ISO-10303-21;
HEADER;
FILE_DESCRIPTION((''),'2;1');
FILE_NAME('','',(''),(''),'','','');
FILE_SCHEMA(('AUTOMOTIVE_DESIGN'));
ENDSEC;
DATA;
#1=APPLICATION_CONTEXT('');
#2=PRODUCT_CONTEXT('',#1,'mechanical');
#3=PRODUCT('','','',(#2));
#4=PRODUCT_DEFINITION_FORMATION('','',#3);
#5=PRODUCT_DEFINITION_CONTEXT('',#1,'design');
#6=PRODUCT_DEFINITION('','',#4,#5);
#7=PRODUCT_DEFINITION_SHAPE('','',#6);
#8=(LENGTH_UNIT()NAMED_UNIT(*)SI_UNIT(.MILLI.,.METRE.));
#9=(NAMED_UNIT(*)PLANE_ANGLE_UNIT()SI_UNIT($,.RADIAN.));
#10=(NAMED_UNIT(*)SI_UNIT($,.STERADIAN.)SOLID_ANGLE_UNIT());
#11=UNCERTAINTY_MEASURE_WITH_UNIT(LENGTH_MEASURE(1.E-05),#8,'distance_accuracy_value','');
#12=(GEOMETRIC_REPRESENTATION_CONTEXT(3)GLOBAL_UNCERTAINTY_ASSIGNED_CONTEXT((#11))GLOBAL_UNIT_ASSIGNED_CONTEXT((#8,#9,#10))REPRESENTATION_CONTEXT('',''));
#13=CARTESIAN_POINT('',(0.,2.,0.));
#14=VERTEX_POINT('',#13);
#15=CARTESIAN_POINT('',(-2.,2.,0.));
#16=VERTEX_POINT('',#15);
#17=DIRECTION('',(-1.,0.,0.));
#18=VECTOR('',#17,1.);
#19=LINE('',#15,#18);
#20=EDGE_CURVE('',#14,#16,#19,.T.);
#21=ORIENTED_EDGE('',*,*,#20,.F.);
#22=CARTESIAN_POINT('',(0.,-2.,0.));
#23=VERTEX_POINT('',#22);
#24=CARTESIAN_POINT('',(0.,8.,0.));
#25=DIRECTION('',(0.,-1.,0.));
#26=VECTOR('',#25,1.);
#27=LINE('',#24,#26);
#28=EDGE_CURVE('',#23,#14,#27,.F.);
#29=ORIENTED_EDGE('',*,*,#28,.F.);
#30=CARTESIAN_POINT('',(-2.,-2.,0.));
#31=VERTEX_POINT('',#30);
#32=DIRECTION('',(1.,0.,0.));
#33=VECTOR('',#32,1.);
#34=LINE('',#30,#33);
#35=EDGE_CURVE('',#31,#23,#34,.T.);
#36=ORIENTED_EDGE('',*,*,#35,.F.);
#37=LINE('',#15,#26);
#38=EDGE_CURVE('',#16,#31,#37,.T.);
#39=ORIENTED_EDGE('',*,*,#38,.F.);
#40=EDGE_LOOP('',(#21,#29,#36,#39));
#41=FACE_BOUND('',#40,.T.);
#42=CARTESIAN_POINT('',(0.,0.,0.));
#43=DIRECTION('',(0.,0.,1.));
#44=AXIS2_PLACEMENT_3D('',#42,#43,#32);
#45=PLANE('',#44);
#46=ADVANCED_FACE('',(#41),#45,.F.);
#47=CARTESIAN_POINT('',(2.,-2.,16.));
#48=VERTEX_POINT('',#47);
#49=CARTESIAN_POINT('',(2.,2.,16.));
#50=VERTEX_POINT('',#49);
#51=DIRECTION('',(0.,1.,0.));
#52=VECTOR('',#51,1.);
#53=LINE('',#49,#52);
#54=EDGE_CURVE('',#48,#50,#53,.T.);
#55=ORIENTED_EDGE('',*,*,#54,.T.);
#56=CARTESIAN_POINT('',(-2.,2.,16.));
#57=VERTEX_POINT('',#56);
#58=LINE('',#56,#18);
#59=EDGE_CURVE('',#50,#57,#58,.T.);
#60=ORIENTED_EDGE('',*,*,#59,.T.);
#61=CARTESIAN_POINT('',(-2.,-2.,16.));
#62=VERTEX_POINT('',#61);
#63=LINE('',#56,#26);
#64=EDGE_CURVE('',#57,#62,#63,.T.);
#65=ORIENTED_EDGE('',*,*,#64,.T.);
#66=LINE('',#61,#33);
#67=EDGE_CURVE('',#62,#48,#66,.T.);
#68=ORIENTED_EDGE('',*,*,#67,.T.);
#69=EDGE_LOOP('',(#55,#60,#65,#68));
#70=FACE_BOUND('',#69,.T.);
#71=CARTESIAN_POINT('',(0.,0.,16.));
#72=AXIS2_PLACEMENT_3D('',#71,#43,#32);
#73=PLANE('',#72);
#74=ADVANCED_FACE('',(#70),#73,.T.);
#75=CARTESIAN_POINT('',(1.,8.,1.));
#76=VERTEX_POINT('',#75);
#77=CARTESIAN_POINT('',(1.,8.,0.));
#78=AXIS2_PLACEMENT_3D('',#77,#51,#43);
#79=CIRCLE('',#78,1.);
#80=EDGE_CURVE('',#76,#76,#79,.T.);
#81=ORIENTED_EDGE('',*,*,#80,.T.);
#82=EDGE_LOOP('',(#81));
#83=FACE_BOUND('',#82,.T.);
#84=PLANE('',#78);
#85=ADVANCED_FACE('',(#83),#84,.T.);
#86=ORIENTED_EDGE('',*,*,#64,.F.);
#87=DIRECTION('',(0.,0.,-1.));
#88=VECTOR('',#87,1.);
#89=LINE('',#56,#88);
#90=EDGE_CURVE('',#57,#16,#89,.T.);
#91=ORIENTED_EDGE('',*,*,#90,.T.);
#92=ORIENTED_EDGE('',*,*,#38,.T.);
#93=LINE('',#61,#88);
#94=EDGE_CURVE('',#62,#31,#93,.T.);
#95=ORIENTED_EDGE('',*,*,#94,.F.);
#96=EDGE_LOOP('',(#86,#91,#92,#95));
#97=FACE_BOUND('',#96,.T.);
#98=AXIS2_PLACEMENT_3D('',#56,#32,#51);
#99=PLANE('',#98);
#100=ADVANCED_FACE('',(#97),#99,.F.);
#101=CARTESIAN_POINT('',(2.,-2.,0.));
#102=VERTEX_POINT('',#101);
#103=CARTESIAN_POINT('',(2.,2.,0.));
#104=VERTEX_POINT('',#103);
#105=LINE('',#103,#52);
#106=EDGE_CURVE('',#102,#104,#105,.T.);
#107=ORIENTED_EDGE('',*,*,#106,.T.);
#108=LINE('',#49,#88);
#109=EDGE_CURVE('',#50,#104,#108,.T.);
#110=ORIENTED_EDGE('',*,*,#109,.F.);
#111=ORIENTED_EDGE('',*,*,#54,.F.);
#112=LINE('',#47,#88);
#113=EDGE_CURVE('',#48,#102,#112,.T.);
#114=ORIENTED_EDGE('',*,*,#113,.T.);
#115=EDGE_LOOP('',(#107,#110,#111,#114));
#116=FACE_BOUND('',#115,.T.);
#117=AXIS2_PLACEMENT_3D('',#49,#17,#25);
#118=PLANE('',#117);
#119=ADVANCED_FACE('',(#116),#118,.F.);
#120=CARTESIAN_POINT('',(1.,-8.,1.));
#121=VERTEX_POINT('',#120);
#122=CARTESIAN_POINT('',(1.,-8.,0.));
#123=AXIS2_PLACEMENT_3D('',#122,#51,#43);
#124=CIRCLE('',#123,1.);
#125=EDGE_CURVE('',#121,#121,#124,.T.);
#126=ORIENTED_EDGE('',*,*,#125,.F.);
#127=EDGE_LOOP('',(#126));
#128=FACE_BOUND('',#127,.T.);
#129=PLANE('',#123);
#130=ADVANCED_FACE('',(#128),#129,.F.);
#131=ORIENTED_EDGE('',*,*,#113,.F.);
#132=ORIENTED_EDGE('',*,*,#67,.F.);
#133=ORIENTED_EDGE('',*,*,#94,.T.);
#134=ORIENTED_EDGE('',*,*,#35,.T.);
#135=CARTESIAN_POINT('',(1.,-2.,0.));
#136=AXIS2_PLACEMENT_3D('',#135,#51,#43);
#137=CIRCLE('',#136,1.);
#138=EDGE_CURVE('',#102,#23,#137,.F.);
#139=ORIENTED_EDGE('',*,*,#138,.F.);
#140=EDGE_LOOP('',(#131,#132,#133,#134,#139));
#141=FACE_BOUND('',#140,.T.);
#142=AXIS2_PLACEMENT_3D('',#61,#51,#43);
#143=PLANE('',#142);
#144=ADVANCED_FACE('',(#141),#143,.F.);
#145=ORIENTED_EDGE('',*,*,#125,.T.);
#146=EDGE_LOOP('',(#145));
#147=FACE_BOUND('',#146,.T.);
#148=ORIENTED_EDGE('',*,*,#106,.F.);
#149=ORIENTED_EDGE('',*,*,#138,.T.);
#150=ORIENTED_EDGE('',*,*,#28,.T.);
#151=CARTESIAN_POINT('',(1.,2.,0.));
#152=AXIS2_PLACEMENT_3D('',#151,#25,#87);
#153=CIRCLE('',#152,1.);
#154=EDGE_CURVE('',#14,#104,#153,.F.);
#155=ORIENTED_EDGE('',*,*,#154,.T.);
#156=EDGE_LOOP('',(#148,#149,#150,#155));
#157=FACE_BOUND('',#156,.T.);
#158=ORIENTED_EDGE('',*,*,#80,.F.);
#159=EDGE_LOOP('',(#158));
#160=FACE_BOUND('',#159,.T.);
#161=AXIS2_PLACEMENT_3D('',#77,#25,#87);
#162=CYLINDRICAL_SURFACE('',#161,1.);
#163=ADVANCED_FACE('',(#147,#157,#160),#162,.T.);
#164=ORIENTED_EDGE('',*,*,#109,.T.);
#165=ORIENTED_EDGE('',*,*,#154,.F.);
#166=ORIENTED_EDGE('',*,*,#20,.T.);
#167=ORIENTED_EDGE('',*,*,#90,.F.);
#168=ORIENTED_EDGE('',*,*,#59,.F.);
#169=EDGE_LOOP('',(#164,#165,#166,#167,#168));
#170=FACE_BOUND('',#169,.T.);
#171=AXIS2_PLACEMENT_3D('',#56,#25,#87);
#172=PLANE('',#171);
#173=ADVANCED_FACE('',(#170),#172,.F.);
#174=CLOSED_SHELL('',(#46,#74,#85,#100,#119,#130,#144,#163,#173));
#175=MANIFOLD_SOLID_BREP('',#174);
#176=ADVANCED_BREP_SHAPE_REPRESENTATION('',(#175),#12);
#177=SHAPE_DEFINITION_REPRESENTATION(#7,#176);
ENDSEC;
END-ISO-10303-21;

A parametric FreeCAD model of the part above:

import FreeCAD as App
import Part
import Sketcher

V = App.Vector
Q = App.Units.Quantity

doc = App.newDocument("Part")
body = doc.addObject("PartDesign::Body", "Body")

# Sketch on XY plane
sketch1 = doc.addObject("Sketcher::SketchObject", "Sketch")
body.addObject(sketch1)
sketch1.AttachmentSupport = (doc.XY_Plane, [""])
sketch1.MapMode = "FlatFace"
sketch1.addGeometry([
    Part.LineSegment(V(-2, 2, 0), V(-2, -2, 0)),
    Part.LineSegment(V(-2, -2, 0), V(2, -2, 0)),
    Part.LineSegment(V(2, -2, 0), V(2, 2, 0)),
    Part.LineSegment(V(2, 2, 0), V(-2, 2, 0)),
], False)
sketch1.addConstraint([
    Sketcher.Constraint("Coincident", 0, 2, 1, 1),
    Sketcher.Constraint("Coincident", 1, 2, 2, 1),
    Sketcher.Constraint("Coincident", 2, 2, 3, 1),
    Sketcher.Constraint("Coincident", 3, 2, 0, 1),
    Sketcher.Constraint("Vertical", 0),
    Sketcher.Constraint("Horizontal", 1),
    Sketcher.Constraint("Vertical", 2),
    Sketcher.Constraint("Horizontal", 3),
    Sketcher.Constraint("Symmetric", 0, 2, 2, 2, -1, 1),
    Sketcher.Constraint("Equal", 3, 0),
    Sketcher.Constraint("DistanceX", 1, 1, 1, 2, Q("4 mm")),
])
pad1 = doc.addObject("PartDesign::Pad", "Pad")
body.addObject(pad1)
pad1.Profile = sketch1
pad1.Length = 16

# Sketch on XZ plane
sketch2 = doc.addObject("Sketcher::SketchObject", "Sketch001")
body.addObject(sketch2)
sketch2.AttachmentSupport = (doc.XZ_Plane, [""])
sketch2.MapMode = "FlatFace"
sketch2.addGeometry(Part.Circle(V(1, 0, 0), V(0, 0, 1), 1), False)
sketch2.addConstraint([
    Sketcher.Constraint("PointOnObject", 0, 3, -1),
    Sketcher.Constraint("Diameter", 0, Q("2 mm")),
    Sketcher.Constraint("DistanceX", -1, 1, 0, 3, Q("1 mm")),
])
pad2 = doc.addObject("PartDesign::Pad", "Pad001")
body.addObject(pad2)
pad2.Profile = sketch2
pad2.Length = 16
pad2.Midplane = True

doc.recompute()
